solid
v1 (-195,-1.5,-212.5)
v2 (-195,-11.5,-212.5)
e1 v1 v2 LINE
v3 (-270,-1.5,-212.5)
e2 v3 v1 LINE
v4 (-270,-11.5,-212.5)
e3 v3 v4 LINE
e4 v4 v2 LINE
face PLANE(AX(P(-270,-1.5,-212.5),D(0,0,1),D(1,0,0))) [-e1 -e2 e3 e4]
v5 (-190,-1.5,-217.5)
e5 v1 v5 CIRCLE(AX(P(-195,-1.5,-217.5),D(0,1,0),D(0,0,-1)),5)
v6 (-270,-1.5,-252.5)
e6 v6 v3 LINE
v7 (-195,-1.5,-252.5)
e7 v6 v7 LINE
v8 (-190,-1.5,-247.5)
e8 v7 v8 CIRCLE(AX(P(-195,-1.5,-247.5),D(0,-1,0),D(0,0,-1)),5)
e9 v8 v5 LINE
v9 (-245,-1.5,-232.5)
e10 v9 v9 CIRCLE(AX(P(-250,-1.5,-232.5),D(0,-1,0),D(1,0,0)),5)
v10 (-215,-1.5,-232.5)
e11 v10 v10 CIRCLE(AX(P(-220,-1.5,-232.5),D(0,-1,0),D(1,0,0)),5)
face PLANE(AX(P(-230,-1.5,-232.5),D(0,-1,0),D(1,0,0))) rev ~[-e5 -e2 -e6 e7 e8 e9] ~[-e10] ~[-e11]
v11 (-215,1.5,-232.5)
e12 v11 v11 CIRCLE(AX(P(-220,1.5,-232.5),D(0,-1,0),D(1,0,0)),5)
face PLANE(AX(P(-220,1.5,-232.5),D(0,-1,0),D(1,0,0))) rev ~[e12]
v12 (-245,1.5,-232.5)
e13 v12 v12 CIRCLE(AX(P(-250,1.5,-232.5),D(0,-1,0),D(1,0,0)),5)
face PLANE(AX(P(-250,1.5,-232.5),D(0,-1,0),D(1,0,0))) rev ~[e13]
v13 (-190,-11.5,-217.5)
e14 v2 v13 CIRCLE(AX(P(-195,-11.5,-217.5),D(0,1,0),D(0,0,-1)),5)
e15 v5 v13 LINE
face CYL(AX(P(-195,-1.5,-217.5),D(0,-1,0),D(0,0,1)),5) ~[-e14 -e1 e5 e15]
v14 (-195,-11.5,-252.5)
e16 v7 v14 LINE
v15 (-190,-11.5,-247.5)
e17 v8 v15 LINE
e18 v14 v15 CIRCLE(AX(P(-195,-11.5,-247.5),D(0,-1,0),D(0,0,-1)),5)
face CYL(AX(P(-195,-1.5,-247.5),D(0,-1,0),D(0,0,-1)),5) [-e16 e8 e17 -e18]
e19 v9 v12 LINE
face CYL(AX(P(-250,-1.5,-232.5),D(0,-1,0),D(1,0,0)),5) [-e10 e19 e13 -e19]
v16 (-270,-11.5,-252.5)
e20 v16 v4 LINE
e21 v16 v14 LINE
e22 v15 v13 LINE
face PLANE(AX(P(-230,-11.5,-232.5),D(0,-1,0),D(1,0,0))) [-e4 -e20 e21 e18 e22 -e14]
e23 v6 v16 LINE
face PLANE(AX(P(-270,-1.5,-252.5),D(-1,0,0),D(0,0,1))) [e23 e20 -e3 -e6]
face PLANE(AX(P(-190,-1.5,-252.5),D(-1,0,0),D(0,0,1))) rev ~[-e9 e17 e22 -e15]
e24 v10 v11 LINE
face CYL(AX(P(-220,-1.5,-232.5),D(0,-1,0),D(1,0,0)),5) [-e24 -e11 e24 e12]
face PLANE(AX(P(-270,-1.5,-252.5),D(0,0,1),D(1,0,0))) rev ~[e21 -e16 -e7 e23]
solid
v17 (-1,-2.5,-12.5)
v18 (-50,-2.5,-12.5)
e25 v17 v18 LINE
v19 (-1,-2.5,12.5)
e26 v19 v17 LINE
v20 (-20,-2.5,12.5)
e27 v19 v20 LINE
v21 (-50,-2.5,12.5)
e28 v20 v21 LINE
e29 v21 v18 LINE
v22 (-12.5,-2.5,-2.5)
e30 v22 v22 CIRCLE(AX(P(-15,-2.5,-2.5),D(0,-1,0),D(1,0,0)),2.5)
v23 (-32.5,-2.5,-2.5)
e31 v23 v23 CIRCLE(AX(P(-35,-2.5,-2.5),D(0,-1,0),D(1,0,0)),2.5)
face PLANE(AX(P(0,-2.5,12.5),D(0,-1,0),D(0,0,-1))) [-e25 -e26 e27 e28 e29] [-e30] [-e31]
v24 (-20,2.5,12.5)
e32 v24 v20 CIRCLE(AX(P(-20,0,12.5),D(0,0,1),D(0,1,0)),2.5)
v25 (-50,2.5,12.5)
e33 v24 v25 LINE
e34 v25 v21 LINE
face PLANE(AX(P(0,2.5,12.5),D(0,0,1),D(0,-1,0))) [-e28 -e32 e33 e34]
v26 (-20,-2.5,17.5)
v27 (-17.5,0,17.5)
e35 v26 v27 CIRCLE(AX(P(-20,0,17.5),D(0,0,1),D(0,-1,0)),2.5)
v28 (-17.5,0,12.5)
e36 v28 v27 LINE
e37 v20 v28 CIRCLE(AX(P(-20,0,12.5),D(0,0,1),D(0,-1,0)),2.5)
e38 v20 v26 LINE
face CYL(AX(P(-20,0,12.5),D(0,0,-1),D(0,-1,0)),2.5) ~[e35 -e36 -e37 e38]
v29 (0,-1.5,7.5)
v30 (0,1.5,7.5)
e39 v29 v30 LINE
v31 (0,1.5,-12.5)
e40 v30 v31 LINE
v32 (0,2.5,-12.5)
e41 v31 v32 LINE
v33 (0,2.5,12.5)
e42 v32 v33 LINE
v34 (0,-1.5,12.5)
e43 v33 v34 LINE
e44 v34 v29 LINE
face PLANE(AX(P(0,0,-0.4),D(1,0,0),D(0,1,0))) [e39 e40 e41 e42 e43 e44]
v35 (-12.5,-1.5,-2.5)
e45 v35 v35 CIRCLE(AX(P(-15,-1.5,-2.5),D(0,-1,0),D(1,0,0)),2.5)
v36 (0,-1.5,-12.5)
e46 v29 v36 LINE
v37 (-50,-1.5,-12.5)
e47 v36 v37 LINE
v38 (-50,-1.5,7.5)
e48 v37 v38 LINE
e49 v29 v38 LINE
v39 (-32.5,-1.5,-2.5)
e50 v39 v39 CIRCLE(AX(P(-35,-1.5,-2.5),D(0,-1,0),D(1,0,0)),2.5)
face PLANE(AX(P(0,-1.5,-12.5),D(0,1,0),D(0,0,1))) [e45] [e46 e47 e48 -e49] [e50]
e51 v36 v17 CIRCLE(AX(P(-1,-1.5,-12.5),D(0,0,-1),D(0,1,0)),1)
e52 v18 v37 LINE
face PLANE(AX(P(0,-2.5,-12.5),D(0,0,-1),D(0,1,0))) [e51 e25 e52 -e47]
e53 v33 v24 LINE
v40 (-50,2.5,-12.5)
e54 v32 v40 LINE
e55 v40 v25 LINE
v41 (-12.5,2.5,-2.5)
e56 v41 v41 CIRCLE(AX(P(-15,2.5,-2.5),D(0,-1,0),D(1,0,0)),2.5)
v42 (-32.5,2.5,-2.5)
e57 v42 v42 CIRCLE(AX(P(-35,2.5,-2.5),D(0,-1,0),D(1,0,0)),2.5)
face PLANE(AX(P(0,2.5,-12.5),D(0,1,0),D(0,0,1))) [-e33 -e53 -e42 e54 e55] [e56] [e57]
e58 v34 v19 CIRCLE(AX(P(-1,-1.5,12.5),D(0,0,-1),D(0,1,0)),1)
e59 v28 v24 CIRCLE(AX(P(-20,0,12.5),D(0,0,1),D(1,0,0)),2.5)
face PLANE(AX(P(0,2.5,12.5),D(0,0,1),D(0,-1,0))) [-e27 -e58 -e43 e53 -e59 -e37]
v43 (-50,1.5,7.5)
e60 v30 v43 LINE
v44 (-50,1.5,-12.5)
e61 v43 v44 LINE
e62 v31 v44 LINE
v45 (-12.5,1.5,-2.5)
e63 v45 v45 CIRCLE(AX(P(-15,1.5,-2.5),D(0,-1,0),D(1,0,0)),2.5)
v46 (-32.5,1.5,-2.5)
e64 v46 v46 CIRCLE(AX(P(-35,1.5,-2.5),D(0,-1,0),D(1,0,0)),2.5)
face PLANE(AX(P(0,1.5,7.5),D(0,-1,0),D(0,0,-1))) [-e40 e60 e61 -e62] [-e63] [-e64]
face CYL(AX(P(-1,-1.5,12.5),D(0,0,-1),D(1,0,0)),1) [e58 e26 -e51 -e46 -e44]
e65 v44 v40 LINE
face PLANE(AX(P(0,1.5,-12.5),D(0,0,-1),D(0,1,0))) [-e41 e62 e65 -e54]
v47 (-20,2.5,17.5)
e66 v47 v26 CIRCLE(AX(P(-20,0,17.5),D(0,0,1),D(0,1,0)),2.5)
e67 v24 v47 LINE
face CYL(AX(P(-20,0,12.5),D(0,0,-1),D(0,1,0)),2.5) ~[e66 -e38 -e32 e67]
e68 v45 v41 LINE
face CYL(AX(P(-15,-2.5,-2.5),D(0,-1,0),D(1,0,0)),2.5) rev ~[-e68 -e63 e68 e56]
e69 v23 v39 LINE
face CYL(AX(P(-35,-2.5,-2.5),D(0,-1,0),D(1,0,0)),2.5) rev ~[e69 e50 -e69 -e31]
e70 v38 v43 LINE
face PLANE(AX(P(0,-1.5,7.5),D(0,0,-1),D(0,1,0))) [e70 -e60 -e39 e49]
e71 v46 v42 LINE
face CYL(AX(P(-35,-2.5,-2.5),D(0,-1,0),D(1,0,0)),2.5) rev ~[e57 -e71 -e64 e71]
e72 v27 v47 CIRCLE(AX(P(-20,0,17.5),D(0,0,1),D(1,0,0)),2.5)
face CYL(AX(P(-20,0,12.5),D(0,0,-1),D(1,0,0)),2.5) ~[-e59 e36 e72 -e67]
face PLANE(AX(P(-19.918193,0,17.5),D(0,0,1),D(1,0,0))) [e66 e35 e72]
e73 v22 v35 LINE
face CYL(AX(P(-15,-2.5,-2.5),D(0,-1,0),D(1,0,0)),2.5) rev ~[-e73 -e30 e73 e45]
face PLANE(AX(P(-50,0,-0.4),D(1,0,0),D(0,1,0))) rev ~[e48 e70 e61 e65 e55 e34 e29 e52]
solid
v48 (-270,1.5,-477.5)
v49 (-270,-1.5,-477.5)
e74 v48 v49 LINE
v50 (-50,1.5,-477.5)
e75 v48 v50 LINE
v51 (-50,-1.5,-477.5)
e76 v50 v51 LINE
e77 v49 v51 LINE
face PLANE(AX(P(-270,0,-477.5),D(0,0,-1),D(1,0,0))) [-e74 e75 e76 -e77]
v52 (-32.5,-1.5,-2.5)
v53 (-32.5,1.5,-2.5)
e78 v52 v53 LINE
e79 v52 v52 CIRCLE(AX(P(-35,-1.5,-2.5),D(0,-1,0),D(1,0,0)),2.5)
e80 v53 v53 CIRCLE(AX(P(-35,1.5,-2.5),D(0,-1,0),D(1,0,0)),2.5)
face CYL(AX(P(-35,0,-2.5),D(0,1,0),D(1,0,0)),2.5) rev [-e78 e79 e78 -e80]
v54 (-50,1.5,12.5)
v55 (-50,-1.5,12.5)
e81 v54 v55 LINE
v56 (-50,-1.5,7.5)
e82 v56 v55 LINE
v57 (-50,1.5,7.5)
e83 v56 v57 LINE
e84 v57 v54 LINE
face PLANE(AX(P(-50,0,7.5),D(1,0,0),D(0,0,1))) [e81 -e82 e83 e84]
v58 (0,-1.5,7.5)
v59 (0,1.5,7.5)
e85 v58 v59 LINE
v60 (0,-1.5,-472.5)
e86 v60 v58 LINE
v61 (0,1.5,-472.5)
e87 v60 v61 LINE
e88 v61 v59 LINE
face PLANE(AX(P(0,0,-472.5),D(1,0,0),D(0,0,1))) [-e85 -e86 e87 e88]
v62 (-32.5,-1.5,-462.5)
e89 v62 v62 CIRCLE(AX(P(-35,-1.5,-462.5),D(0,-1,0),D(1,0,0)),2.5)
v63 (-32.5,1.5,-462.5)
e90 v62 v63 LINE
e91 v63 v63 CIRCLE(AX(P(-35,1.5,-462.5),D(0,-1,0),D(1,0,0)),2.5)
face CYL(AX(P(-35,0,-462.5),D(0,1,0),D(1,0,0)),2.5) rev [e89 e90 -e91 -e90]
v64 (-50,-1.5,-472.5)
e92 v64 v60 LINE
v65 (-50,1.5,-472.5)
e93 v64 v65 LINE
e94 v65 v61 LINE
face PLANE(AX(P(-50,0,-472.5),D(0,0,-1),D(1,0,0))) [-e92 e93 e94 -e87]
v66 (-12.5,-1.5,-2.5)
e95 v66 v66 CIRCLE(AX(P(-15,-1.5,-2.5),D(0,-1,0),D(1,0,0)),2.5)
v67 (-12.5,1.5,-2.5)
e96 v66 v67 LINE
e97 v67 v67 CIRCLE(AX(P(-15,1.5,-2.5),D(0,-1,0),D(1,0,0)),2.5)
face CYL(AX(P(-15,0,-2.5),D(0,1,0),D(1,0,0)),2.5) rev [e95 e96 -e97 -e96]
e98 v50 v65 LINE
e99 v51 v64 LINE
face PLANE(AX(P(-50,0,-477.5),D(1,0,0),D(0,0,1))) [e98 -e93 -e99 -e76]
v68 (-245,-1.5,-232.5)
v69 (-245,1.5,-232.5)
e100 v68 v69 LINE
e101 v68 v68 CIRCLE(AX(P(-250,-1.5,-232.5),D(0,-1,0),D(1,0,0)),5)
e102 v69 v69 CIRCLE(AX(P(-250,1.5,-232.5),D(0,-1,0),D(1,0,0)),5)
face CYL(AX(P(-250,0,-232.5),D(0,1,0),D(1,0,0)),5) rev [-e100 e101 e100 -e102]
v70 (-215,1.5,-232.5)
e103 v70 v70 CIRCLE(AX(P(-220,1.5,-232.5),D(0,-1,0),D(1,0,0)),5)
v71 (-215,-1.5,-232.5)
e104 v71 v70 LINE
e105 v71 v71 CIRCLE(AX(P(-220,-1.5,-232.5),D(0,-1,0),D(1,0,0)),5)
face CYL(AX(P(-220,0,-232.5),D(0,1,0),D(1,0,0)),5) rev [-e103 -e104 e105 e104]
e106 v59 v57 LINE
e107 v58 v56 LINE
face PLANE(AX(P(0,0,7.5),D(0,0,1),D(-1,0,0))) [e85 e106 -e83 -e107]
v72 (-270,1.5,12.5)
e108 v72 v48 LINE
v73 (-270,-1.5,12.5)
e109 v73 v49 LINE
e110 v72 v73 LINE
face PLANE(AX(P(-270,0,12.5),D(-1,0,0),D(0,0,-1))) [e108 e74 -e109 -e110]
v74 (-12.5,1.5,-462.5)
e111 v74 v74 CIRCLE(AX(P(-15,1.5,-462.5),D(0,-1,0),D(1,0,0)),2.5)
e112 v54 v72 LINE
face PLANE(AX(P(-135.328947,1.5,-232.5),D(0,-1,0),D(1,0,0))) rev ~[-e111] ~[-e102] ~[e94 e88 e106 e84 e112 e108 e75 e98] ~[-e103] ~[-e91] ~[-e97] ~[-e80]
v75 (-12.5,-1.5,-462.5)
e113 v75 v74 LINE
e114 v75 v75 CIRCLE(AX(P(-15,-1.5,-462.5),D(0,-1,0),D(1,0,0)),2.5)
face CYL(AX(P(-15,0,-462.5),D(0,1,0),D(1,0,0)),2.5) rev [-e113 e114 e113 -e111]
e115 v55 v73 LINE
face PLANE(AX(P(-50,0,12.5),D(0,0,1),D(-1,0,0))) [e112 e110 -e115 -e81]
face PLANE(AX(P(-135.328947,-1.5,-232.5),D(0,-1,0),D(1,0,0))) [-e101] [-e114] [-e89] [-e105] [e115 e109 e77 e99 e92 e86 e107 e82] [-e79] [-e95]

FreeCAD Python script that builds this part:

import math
import FreeCAD as App
import Part
import Sketcher
from FreeCAD import Vector
Q = App.Units.Quantity


def edges_at(feature, points):
    """Names of the edges that pass closest to the given points."""
    edges = feature.Shape.Edges
    near = lambda p: min(range(len(edges)), key=lambda i: edges[i].distToShape(Part.Vertex(*p))[0])
    return sorted({f"Edge{near(p) + 1}" for p in points})


def add_polygon(sketch, points):
    """Adds a closed chain of lines whose ends are joined by coincident constraints."""
    first, n = sketch.GeometryCount, len(points)
    for a, b in zip(points, points[1:] + points[:1]):
        sketch.addGeometry(Part.LineSegment(App.Vector(*a, 0), App.Vector(*b, 0)), False)
    for i in range(n):
        sketch.addConstraint(Sketcher.Constraint("Coincident", first + i, 2, first + (i + 1) % n, 1))

doc = App.newDocument("Part")
body = doc.addObject("PartDesign::Body", "Body")

# Sketch on YZ plane
sketch1 = body.newObject("Sketcher::SketchObject", "Sketch")
sketch1.AttachmentSupport = (doc.getObject("YZ_Plane"), [""])
sketch1.MapMode = "FlatFace"
add_polygon(sketch1, [(1.5, -12.5), (2.5, -12.5), (2.5, 12.5), (-2.5, 12.5), (-2.5, -12.5), (-1.5, -12.5), (-1.5, 7.5), (1.5, 7.5)])  # lines 0-7
sketch1.addConstraint(Sketcher.Constraint("Horizontal", 0))
sketch1.addConstraint(Sketcher.Constraint("Vertical", 1))
sketch1.addConstraint(Sketcher.Constraint("Horizontal", 2))
sketch1.addConstraint(Sketcher.Constraint("Vertical", 3))
sketch1.addConstraint(Sketcher.Constraint("Horizontal", 4))
sketch1.addConstraint(Sketcher.Constraint("Vertical", 5))
sketch1.addConstraint(Sketcher.Constraint("Horizontal", 6))
sketch1.addConstraint(Sketcher.Constraint("Vertical", 7))
sketch1.addConstraint(Sketcher.Constraint("Symmetric", 0, 2, 2, 2, -1, 1))
sketch1.addConstraint(Sketcher.Constraint("Symmetric", 4, 2, 7, 2, -2))
sketch1.addConstraint(Sketcher.Constraint("DistanceX", 0, 1, 0, 2, Q("1 mm")))
sketch1.addConstraint(Sketcher.Constraint("DistanceX", 2, 2, 2, 1, Q("5 mm")))
sketch1.addConstraint(Sketcher.Constraint("DistanceY", 1, 1, 1, 2, Q("25 mm")))
sketch1.addConstraint(Sketcher.Constraint("DistanceY", 5, 1, 5, 2, Q("20 mm")))
pad1 = body.newObject("PartDesign::Pad", "Pad")
pad1.Profile = sketch1
pad1.Length = 50
pad1.Reversed = True

# Sketch on XY plane
sketch2 = body.newObject("Sketcher::SketchObject", "Sketch001")
sketch2.AttachmentSupport = (doc.getObject("XY_Plane"), [""])
sketch2.MapMode = "FlatFace"
sketch2.AttachmentOffset = App.Placement(Vector(0, 0, 12.5), App.Rotation())
sketch2.addGeometry(Part.ArcOfCircle(Part.Circle(Vector(-20, 0, 0), Vector(0, 0, 1), 2.5), math.radians(-90), math.radians(0)), False)
sketch2.addGeometry(Part.ArcOfCircle(Part.Circle(Vector(-20, 0, 0), Vector(0, 0, 1), 2.5), math.radians(0), math.radians(90)), False)
sketch2.addGeometry(Part.ArcOfCircle(Part.Circle(Vector(-20, 0, 0), Vector(0, 0, 1), 2.5), math.radians(90), math.radians(270)), False)
sketch2.addConstraint(Sketcher.Constraint("Tangent", 0, 2, 1, 1))
sketch2.addConstraint(Sketcher.Constraint("Tangent", 1, 2, 2, 1))
sketch2.addConstraint(Sketcher.Constraint("Tangent", 2, 2, 0, 1))
sketch2.addConstraint(Sketcher.Constraint("Symmetric", 1, 2, 2, 2, -1))
sketch2.addConstraint(Sketcher.Constraint("PointOnObject", 0, 2, -1))
sketch2.addConstraint(Sketcher.Constraint("Vertical", 2, 3, 1, 2))
sketch2.addConstraint(Sketcher.Constraint("Radius", 0, Q("2.5 mm")))
sketch2.addConstraint(Sketcher.Constraint("DistanceX", 0, 3, -1, 1, Q("20 mm")))
pad2 = body.newObject("PartDesign::Pad", "Pad001")
pad2.Profile = sketch2
pad2.Length = 5

# Sketch on XZ plane
sketch3 = body.newObject("Sketcher::SketchObject", "Sketch002")
sketch3.AttachmentSupport = (doc.getObject("XZ_Plane"), [""])
sketch3.MapMode = "FlatFace"
sketch3.AttachmentOffset = App.Placement(Vector(0, 0, 2.5), App.Rotation())
sketch3.addGeometry(Part.Circle(Vector(-35, -2.5, 0), Vector(0, 0, 1), 2.5), False)
sketch3.addGeometry(Part.Circle(Vector(-15, -2.5, 0), Vector(0, 0, 1), 2.5), False)
sketch3.addConstraint(Sketcher.Constraint("Equal", 0, 1))
sketch3.addConstraint(Sketcher.Constraint("Horizontal", 0, 3, 1, 3))
sketch3.addConstraint(Sketcher.Constraint("Diameter", 0, Q("5 mm")))
sketch3.addConstraint(Sketcher.Constraint("DistanceX", 0, 3, -1, 1, Q("35 mm")))
sketch3.addConstraint(Sketcher.Constraint("DistanceX", 1, 3, -1, 1, Q("15 mm")))
sketch3.addConstraint(Sketcher.Constraint("DistanceY", 0, 3, -1, 1, Q("2.5 mm")))
pocket1 = body.newObject("PartDesign::Pocket", "Pocket")
pocket1.Profile = sketch3
pocket1.Length = 25
doc.recompute()

fillet = body.newObject("PartDesign::Fillet", "Fillet")
fillet.Base = (pocket1, edges_at(pocket1, [(0, -2.5, 0)]))
fillet.Radius = 1
body2 = doc.addObject("PartDesign::Body", "Body001")

# Sketch on XZ plane
sketch4 = body2.newObject("Sketcher::SketchObject", "Sketch003")
sketch4.AttachmentSupport = (doc.getObject("XZ_Plane001"), [""])
sketch4.MapMode = "FlatFace"
add_polygon(sketch4, [(-50, 7.5), (-50, 12.5), (-270, 12.5), (-270, -477.5), (-50, -477.5), (-50, -472.5), (0, -472.5), (0, 7.5)])  # lines 0-7
sketch4.addGeometry(Part.Circle(Vector(-35, -462.5, 0), Vector(0, 0, 1), 2.5), False)  # 8
sketch4.addGeometry(Part.Circle(Vector(-15, -462.5, 0), Vector(0, 0, 1), 2.5), False)  # 9
sketch4.addGeometry(Part.Circle(Vector(-250, -232.5, 0), Vector(0, 0, 1), 5), False)  # 10
sketch4.addGeometry(Part.Circle(Vector(-220, -232.5, 0), Vector(0, 0, 1), 5), False)  # 11
sketch4.addGeometry(Part.Circle(Vector(-35, -2.5, 0), Vector(0, 0, 1), 2.5), False)  # 12
sketch4.addGeometry(Part.Circle(Vector(-15, -2.5, 0), Vector(0, 0, 1), 2.5), False)  # 13
sketch4.addConstraint(Sketcher.Constraint("Vertical", 0))
sketch4.addConstraint(Sketcher.Constraint("Horizontal", 1))
sketch4.addConstraint(Sketcher.Constraint("Vertical", 2))
sketch4.addConstraint(Sketcher.Constraint("Horizontal", 3))
sketch4.addConstraint(Sketcher.Constraint("Vertical", 4))
sketch4.addConstraint(Sketcher.Constraint("Horizontal", 5))
sketch4.addConstraint(Sketcher.Constraint("Vertical", 6))
sketch4.addConstraint(Sketcher.Constraint("Horizontal", 7))
sketch4.addConstraint(Sketcher.Constraint("Equal", 8, 9))
sketch4.addConstraint(Sketcher.Constraint("Equal", 10, 11))
sketch4.addConstraint(Sketcher.Constraint("Equal", 9, 12))
sketch4.addConstraint(Sketcher.Constraint("Equal", 12, 13))
sketch4.addConstraint(Sketcher.Constraint("PointOnObject", 5, 2, -2))
sketch4.addConstraint(Sketcher.Constraint("Horizontal", 8, 3, 9, 3))
sketch4.addConstraint(Sketcher.Constraint("Horizontal", 10, 3, 11, 3))
sketch4.addConstraint(Sketcher.Constraint("Horizontal", 12, 3, 13, 3))
sketch4.addConstraint(Sketcher.Constraint("Vertical", 8, 3, 12, 3))
sketch4.addConstraint(Sketcher.Constraint("Vertical", 9, 3, 13, 3))
sketch4.addConstraint(Sketcher.Constraint("Vertical", 0, 2, 3, 2))
sketch4.addConstraint(Sketcher.Constraint("Equal", 0, 4))
sketch4.addConstraint(Sketcher.Constraint("Diameter", 8, Q("5 mm")))
sketch4.addConstraint(Sketcher.Constraint("Diameter", 10, Q("10 mm")))
sketch4.addConstraint(Sketcher.Constraint("DistanceX", 1, 2, 1, 1, Q("220 mm")))
sketch4.addConstraint(Sketcher.Constraint("DistanceX", 5, 1, 5, 2, Q("50 mm")))
sketch4.addConstraint(Sketcher.Constraint("DistanceY", 0, 1, 0, 2, Q("5 mm")))
sketch4.addConstraint(Sketcher.Constraint("DistanceY", 2, 2, 2, 1, Q("490 mm")))
sketch4.addConstraint(Sketcher.Constraint("DistanceX", 8, 3, -1, 1, Q("35 mm")))
sketch4.addConstraint(Sketcher.Constraint("DistanceX", 9, 3, -1, 1, Q("15 mm")))
sketch4.addConstraint(Sketcher.Constraint("DistanceX", 10, 3, -1, 1, Q("250 mm")))
sketch4.addConstraint(Sketcher.Constraint("DistanceX", 11, 3, -1, 1, Q("220 mm")))
sketch4.addConstraint(Sketcher.Constraint("DistanceY", 8, 3, 10, 3, Q("230 mm")))
sketch4.addConstraint(Sketcher.Constraint("DistanceY", 11, 3, 12, 3, Q("230 mm")))
sketch4.addConstraint(Sketcher.Constraint("DistanceY", 12, 3, 0, 2, Q("15 mm")))
sketch4.addConstraint(Sketcher.Constraint("DistanceY", 8, 3, -1, 1, Q("462.5 mm")))
pad3 = body2.newObject("PartDesign::Pad", "Pad002")
pad3.Profile = sketch4
pad3.Length = 3
pad3.Midplane = True
body3 = doc.addObject("PartDesign::Body", "Body002")

# Sketch on XZ plane
sketch5 = body3.newObject("Sketcher::SketchObject", "Sketch004")
sketch5.AttachmentSupport = (doc.getObject("XZ_Plane002"), [""])
sketch5.MapMode = "FlatFace"
sketch5.AttachmentOffset = App.Placement(Vector(0, 0, 1.5), App.Rotation())
add_polygon(sketch5, [(-270, -212.5), (-270, -252.5), (-190, -252.5), (-190, -212.5)])  # lines 0-3
sketch5.addConstraint(Sketcher.Constraint("Vertical", 0))
sketch5.addConstraint(Sketcher.Constraint("Horizontal", 1))
sketch5.addConstraint(Sketcher.Constraint("Vertical", 2))
sketch5.addConstraint(Sketcher.Constraint("Horizontal", 3))
sketch5.addConstraint(Sketcher.Constraint("DistanceX", 1, 1, 1, 2, Q("80 mm")))
sketch5.addConstraint(Sketcher.Constraint("DistanceY", 0, 2, 0, 1, Q("40 mm")))
sketch5.addConstraint(Sketcher.Constraint("DistanceX", 0, 2, -1, 1, Q("270 mm")))
sketch5.addConstraint(Sketcher.Constraint("DistanceY", 0, 2, -1, 1, Q("252.5 mm")))
pad4 = body3.newObject("PartDesign::Pad", "Pad003")
pad4.Profile = sketch5
pad4.Length = 10

# Sketch on XZ plane
sketch6 = body3.newObject("Sketcher::SketchObject", "Sketch005")
sketch6.AttachmentSupport = (doc.getObject("XZ_Plane002"), [""])
sketch6.MapMode = "FlatFace"
sketch6.AttachmentOffset = App.Placement(Vector(0, 0, 1.5), App.Rotation())
sketch6.addGeometry(Part.Circle(Vector(-250, -232.5, 0), Vector(0, 0, 1), 5), False)
sketch6.addGeometry(Part.Circle(Vector(-220, -232.5, 0), Vector(0, 0, 1), 5), False)
sketch6.addConstraint(Sketcher.Constraint("Equal", 0, 1))
sketch6.addConstraint(Sketcher.Constraint("Horizontal", 0, 3, 1, 3))
sketch6.addConstraint(Sketcher.Constraint("Diameter", 0, Q("10 mm")))
sketch6.addConstraint(Sketcher.Constraint("DistanceX", 0, 3, -1, 1, Q("250 mm")))
sketch6.addConstraint(Sketcher.Constraint("DistanceX", 1, 3, -1, 1, Q("220 mm")))
sketch6.addConstraint(Sketcher.Constraint("DistanceY", 0, 3, -1, 1, Q("232.5 mm")))
pad5 = body3.newObject("PartDesign::Pad", "Pad004")
pad5.Profile = sketch6
pad5.Length = 3
pad5.Reversed = True
doc.recompute()

fillet2 = body3.newObject("PartDesign::Fillet", "Fillet001")
fillet2.Base = (pad5, edges_at(pad5, [(-190, -6.5, -212.5), (-190, -6.5, -252.5)]))
fillet2.Radius = 5

doc.recompute()
